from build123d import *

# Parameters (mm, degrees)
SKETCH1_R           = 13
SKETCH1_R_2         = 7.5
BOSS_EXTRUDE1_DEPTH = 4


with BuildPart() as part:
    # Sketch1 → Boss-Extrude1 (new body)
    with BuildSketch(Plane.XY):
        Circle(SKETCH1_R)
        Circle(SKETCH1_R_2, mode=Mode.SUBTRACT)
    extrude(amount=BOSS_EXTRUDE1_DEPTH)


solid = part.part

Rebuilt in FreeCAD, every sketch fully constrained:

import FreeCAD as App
import Part
import Sketcher

doc = App.newDocument("Part")
body = doc.addObject("PartDesign::Body", "Body")

sketch1 = body.newObject("Sketcher::SketchObject", "Sketch")
sketch1.AttachmentSupport = (doc.getObject("XY_Plane"), [""])
sketch1.MapMode = "FlatFace"
sketch1.addGeometry([
    Part.Circle(App.Vector(0, 0, 0), App.Vector(0, 0, 1), 13),
    Part.Circle(App.Vector(0, 0, 0), App.Vector(0, 0, 1), 8),
], False)
sketch1.addConstraint([
    Sketcher.Constraint("Coincident", 0, 3, -1, 1),
    Sketcher.Constraint("Coincident", 1, 3, -1, 1),
    Sketcher.Constraint("Diameter", 0, 26.0),
    Sketcher.Constraint("Diameter", 1, 15.0),
])
pad1 = body.newObject("PartDesign::Pad", "Pad")
pad1.Profile = sketch1
pad1.Length = 4

doc.recompute()
